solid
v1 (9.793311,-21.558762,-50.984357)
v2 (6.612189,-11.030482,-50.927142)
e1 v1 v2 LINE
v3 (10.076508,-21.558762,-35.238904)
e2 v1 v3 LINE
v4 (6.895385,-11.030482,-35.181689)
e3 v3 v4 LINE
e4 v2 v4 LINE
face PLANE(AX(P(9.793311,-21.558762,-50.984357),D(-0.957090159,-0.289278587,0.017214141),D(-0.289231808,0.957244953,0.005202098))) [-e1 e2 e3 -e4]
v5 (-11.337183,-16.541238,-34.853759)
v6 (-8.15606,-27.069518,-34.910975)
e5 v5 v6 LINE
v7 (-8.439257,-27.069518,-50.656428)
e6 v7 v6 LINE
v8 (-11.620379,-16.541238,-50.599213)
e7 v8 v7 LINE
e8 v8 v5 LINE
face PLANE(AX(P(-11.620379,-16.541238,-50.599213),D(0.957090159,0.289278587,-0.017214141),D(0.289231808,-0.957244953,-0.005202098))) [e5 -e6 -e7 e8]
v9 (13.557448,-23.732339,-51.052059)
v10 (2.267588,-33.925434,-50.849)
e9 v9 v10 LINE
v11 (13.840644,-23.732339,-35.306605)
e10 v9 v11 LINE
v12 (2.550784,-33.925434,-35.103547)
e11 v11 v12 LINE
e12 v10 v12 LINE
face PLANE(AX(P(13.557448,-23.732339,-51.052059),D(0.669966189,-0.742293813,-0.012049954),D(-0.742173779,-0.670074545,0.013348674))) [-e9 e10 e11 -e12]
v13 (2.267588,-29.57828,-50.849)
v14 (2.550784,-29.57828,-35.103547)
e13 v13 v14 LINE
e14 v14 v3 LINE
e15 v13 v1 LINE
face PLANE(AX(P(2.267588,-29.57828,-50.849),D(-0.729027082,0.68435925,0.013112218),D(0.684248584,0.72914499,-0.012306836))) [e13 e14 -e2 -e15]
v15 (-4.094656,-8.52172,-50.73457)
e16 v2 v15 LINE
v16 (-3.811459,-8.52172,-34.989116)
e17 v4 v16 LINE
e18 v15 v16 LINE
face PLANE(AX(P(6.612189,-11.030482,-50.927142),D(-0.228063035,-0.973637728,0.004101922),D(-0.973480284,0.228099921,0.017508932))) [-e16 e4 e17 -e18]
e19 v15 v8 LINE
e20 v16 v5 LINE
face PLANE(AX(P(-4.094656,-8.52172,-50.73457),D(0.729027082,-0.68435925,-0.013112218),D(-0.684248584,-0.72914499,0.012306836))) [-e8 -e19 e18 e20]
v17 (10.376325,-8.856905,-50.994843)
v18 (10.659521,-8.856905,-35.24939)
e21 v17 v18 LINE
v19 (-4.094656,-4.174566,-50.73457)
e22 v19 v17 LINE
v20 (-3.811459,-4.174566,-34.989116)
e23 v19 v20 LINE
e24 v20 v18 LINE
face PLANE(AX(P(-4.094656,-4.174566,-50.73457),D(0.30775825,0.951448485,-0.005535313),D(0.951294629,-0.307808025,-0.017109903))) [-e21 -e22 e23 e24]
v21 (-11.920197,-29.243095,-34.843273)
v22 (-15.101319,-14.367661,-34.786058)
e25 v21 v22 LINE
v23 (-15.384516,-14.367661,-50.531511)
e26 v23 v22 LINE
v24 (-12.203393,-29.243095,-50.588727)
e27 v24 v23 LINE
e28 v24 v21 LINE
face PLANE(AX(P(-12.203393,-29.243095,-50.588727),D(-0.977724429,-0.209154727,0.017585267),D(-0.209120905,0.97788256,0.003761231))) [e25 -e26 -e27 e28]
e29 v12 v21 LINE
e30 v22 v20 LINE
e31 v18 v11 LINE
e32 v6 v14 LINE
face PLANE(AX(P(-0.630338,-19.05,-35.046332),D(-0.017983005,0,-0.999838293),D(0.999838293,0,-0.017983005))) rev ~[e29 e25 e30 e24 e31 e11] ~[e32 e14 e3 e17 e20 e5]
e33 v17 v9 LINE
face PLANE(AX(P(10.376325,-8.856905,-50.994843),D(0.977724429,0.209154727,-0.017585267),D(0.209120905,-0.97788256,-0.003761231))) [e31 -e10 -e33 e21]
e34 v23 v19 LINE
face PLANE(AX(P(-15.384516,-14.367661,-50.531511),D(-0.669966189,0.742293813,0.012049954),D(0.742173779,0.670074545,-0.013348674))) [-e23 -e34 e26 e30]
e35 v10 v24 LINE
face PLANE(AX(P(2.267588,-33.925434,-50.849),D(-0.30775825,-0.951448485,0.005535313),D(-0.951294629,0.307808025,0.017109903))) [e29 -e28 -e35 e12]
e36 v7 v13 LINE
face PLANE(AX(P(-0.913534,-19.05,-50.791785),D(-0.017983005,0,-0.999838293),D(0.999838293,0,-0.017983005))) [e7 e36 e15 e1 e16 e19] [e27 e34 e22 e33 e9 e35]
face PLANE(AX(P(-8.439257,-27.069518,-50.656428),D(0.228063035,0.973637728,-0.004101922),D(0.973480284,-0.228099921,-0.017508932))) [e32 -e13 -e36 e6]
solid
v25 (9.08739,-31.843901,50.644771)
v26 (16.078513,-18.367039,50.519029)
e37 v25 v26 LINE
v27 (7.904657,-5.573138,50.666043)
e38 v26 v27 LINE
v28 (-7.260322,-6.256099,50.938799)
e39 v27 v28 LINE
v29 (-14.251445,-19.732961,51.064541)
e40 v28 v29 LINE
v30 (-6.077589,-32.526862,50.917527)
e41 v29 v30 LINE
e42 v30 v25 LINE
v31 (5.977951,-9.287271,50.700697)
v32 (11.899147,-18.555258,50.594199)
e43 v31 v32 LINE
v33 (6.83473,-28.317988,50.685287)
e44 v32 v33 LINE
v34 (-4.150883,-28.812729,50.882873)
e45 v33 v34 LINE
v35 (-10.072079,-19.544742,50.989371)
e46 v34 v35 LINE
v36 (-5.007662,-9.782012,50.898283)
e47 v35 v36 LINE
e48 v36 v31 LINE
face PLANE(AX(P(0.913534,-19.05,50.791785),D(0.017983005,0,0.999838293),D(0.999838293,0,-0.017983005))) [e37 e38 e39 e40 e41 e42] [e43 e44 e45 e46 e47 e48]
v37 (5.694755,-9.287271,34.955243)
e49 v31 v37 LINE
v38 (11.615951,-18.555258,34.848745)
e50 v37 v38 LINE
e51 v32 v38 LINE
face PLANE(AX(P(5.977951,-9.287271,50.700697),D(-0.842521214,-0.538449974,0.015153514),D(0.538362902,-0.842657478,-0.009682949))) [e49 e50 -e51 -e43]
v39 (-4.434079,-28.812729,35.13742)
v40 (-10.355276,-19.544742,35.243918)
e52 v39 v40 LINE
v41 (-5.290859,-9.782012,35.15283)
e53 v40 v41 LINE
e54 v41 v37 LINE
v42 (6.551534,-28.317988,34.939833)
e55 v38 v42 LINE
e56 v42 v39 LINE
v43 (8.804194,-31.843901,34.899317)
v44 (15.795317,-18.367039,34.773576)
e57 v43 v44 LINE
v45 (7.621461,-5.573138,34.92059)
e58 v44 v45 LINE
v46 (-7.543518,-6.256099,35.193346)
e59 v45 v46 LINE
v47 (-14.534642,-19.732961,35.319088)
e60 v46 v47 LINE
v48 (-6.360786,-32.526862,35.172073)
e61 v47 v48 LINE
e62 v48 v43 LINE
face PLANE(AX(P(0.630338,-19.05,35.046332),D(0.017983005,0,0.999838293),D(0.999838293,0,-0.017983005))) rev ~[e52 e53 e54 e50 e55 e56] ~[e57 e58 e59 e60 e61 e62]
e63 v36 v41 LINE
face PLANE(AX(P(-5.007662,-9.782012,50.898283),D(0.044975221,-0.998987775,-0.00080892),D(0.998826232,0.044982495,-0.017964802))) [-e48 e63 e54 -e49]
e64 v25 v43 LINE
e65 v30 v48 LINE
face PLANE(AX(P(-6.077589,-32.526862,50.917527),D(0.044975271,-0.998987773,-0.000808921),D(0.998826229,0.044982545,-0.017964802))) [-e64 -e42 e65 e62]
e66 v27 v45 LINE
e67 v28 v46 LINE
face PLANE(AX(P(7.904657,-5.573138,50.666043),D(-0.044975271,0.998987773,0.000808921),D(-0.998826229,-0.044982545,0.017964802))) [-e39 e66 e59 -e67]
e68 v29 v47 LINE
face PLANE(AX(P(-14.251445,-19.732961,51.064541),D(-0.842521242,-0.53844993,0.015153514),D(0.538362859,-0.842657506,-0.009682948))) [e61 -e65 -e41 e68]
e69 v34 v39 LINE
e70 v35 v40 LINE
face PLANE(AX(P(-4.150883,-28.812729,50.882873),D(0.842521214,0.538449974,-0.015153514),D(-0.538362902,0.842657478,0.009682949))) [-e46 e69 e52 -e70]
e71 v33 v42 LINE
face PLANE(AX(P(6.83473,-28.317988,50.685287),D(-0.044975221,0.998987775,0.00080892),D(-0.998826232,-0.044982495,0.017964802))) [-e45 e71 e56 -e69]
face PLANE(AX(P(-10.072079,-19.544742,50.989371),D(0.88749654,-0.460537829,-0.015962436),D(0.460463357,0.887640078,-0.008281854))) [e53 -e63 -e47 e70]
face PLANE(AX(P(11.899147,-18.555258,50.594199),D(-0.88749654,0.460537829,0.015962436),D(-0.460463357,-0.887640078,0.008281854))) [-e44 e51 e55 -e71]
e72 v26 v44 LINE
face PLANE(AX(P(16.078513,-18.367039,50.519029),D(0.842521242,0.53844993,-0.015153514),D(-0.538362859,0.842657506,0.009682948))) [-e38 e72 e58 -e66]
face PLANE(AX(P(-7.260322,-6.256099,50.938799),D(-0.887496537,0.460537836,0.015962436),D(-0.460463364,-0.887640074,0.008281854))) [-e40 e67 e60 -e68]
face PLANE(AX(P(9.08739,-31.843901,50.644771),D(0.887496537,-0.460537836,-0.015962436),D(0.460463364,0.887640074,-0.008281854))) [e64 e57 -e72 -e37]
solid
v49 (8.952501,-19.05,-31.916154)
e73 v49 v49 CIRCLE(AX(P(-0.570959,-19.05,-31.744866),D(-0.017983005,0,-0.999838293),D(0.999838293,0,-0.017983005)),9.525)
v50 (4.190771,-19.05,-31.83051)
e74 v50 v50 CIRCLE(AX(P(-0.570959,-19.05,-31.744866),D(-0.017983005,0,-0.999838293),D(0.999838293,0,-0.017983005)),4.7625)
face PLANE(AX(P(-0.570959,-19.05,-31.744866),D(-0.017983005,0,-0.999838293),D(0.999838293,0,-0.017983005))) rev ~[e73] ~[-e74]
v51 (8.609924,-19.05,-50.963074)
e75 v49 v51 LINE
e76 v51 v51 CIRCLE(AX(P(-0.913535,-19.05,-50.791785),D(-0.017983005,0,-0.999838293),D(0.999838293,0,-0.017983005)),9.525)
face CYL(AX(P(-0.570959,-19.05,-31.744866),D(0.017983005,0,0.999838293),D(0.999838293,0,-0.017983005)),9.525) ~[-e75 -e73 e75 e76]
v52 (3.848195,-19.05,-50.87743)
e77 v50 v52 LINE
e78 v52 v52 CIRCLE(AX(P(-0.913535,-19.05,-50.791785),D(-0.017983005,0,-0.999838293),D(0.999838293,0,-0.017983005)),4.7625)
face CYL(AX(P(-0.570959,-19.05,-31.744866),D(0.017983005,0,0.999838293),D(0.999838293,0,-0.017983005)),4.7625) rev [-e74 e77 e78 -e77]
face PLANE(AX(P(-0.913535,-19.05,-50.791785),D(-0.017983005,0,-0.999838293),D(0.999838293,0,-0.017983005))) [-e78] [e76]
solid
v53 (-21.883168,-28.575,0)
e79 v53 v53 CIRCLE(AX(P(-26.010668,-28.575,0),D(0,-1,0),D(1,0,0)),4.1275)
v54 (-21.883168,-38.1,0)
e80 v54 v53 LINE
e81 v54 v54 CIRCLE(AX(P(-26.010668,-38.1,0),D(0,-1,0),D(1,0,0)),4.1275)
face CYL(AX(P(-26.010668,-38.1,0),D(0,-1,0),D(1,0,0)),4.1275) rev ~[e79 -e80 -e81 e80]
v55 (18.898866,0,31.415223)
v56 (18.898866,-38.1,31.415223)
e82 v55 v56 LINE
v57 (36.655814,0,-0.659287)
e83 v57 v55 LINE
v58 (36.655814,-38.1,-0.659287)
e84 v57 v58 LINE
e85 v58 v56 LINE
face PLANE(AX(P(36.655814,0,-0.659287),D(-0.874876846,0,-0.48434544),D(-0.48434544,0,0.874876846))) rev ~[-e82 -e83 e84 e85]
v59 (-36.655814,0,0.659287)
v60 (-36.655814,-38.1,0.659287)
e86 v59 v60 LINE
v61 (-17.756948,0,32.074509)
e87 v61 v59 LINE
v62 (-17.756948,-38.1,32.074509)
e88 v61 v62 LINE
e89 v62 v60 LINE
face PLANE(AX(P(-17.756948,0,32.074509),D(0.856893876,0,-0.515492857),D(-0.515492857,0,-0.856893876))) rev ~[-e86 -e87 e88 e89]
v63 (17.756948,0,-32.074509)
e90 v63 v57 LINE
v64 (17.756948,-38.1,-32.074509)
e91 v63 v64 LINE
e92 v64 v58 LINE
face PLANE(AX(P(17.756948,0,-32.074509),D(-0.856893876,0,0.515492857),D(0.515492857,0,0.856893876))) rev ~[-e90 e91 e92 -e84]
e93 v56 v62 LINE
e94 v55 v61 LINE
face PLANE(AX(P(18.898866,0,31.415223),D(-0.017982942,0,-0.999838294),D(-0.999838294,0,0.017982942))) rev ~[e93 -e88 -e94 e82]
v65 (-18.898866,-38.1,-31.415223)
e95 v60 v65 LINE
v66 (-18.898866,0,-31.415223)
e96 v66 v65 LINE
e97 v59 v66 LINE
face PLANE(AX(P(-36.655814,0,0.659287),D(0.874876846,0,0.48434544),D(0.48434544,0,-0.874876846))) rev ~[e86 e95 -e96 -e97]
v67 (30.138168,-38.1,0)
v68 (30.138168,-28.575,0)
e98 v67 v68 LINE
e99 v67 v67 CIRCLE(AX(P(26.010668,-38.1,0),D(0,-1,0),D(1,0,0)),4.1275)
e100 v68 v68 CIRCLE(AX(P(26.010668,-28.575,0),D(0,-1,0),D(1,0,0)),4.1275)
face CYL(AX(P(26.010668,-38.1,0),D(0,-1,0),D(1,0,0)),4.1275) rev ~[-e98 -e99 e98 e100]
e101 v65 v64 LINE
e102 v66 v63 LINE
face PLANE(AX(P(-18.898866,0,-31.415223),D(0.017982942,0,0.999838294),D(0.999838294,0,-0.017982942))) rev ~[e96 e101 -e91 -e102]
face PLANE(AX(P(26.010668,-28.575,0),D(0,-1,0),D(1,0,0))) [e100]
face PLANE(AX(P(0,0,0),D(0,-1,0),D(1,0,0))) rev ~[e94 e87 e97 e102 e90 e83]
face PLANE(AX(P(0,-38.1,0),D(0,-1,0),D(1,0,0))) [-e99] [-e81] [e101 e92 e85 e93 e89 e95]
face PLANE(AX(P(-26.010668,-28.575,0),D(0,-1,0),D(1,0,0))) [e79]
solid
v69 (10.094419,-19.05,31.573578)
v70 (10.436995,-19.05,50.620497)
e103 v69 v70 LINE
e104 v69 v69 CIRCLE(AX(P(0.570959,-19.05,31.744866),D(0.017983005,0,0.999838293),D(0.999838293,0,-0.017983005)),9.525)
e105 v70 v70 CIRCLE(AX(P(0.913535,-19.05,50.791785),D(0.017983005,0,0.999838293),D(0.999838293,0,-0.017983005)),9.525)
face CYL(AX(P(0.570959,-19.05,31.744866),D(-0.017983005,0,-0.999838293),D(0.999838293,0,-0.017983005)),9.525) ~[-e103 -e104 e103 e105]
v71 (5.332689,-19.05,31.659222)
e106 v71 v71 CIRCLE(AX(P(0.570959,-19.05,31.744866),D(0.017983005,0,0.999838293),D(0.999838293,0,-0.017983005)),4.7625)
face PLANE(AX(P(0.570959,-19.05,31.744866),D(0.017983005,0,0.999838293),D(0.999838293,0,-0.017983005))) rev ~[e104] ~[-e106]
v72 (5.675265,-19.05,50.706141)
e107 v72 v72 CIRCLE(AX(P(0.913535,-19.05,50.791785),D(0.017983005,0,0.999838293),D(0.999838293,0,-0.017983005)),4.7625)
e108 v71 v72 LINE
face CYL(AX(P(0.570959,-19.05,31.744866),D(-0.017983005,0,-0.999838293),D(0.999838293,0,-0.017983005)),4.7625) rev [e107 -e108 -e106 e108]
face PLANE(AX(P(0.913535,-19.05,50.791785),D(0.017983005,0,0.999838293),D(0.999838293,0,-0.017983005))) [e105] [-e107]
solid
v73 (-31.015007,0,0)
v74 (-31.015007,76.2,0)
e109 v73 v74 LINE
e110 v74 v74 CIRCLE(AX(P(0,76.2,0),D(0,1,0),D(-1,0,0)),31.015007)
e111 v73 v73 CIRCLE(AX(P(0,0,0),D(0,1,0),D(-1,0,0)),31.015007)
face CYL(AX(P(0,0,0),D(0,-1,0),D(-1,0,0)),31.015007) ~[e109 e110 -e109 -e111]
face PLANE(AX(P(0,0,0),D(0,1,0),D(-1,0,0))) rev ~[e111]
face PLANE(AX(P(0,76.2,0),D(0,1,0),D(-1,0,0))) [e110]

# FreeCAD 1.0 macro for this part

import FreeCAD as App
import Part
import Sketcher
Q = App.Units.Quantity


def add_polygon(sketch, points):
    """Adds a closed chain of lines whose ends are joined by coincident constraints."""
    first, n = sketch.GeometryCount, len(points)
    for a, b in zip(points, points[1:] + points[:1]):
        sketch.addGeometry(Part.LineSegment(App.Vector(*a, 0), App.Vector(*b, 0)), False)
    for i in range(n):
        sketch.addConstraint(Sketcher.Constraint("Coincident", first + i, 2, first + (i + 1) % n, 1))

doc = App.newDocument("Part")
body = doc.addObject("PartDesign::Body", "Body")

sketch1 = doc.addObject("Sketcher::SketchObject", "Sketch")
body.addObject(sketch1)
sketch1.AttachmentSupport = (doc.XZ_Plane, [""])
sketch1.MapMode = "FlatFace"
add_polygon(sketch1, [(18, -32), (37, -1), (19, 31), (-18, 32), (-37, 1), (-19, -31)])
sketch1.addConstraint(Sketcher.Constraint("Symmetric", 0, 2, 3, 2, -1, 1))
sketch1.addConstraint(Sketcher.Constraint("Symmetric", 1, 2, 4, 2, -1, 1))
sketch1.addConstraint(Sketcher.Constraint("Symmetric", 2, 2, 5, 2, -1, 1))
sketch1.addConstraint(Sketcher.Constraint("Equal", 0, 1))
sketch1.addConstraint(Sketcher.Constraint("Equal", 1, 2))
sketch1.addConstraint(Sketcher.Constraint("Distance", 0, Q("36.661742 mm")))
sketch1.addConstraint(Sketcher.Constraint("DistanceX", 2, 2, -1, 1, Q("17.756948 mm")))
sketch1.addConstraint(Sketcher.Constraint("DistanceY", -1, 1, 2, 2, Q("32.074509 mm")))
sketch1.addConstraint(Sketcher.Constraint("DistanceY", 0, 2, 1, 2, Q("32.07451 mm")))
pad1 = doc.addObject("PartDesign::Pad", "Pad")
body.addObject(pad1)
pad1.Profile = sketch1
pad1.Length = Q("1.5 in")

sketch2 = doc.addObject("Sketcher::SketchObject", "Sketch001")
body.addObject(sketch2)
sketch2.AttachmentSupport = (doc.XZ_Plane, [""])
sketch2.MapMode = "FlatFace"
sketch2.AttachmentOffset = App.Placement(App.Vector(0, 0, 1.5 * 25.4), App.Rotation())
sketch2.addGeometry(Part.Circle(App.Vector(-26, 0, 0), App.Vector(0, 0, 1), 4.1), False)
sketch2.addGeometry(Part.Circle(App.Vector(26, 0, 0), App.Vector(0, 0, 1), 4.1), False)
sketch2.addConstraint(Sketcher.Constraint("Equal", 0, 1))
sketch2.addConstraint(Sketcher.Constraint("Symmetric", 0, 3, 1, 3, -1, 1))
sketch2.addConstraint(Sketcher.Constraint("PointOnObject", 0, 3, -1))
sketch2.addConstraint(Sketcher.Constraint("Diameter", 0, Q("0.325 in")))
sketch2.addConstraint(Sketcher.Constraint("DistanceX", 0, 3, -1, 1, Q("26.010668 mm")))
pocket1 = doc.addObject("PartDesign::Pocket", "Pocket")
body.addObject(pocket1)
pocket1.Profile = sketch2
pocket1.Length = Q("0.375 in")
body2 = doc.addObject("PartDesign::Body", "Body001")

sketch3 = doc.addObject("Sketcher::SketchObject", "Sketch002")
body2.addObject(sketch3)
sketch3.Placement = App.Placement(App.Vector(-0.570959, 0, -31.744866), App.Rotation(App.Vector(0.999838293, 0, -0.017983005), App.Vector(0, -1.000000001, 0), App.Vector(-0.017983005, 0, -0.999838293), "ZXY"))
sketch3.addGeometry(Part.Circle(App.Vector(0, 19.1, 0), App.Vector(0, 0, 1), 9.5), False)
sketch3.addGeometry(Part.Circle(App.Vector(0, 19.1, 0), App.Vector(0, 0, 1), 4.8), False)
sketch3.addConstraint(Sketcher.Constraint("Coincident", 1, 3, 0, 3))
sketch3.addConstraint(Sketcher.Constraint("PointOnObject", 0, 3, -2))
sketch3.addConstraint(Sketcher.Constraint("Diameter", 0, Q("0.75 in")))
sketch3.addConstraint(Sketcher.Constraint("Diameter", 1, Q("0.375 in")))
sketch3.addConstraint(Sketcher.Constraint("DistanceY", -1, 1, 0, 3, Q("0.75 in")))
pad2 = doc.addObject("PartDesign::Pad", "Pad001")
body2.addObject(pad2)
pad2.Profile = sketch3
pad2.Length = Q("0.75 in")
body3 = doc.addObject("PartDesign::Body", "Body002")

sketch4 = doc.addObject("Sketcher::SketchObject", "Sketch003")
body3.addObject(sketch4)
sketch4.Placement = App.Placement(App.Vector(-0.913534, 0, -50.791785), App.Rotation(App.Vector(0.999838293, 0, -0.017983005), App.Vector(0, -1.000000001, 0), App.Vector(-0.017983005, 0, -0.999838293), "ZXY"))
add_polygon(sketch4, [(11, 9), (14, 24), (3, 34), (-11, 29), (-14, 14), (-3, 4)])
add_polygon(sketch4, [(-8, 27), (3, 30), (11, 22), (8, 11), (-3, 9), (-11, 17)])
sketch4.addConstraint(Sketcher.Constraint("Parallel", 0, 3))
sketch4.addConstraint(Sketcher.Constraint("Parallel", 1, 4))
sketch4.addConstraint(Sketcher.Constraint("Parallel", 2, 5))
sketch4.addConstraint(Sketcher.Constraint("Parallel", 6, 9))
sketch4.addConstraint(Sketcher.Constraint("Parallel", 7, 10))
sketch4.addConstraint(Sketcher.Constraint("Parallel", 8, 11))
sketch4.addConstraint(Sketcher.Constraint("Vertical", 1, 2, 6, 2))
sketch4.addConstraint(Sketcher.Constraint("Vertical", 4, 2, 9, 2))
sketch4.addConstraint(Sketcher.Constraint("Equal", 0, 1))
sketch4.addConstraint(Sketcher.Constraint("Equal", 1, 2))
sketch4.addConstraint(Sketcher.Constraint("Equal", 2, 3))
sketch4.addConstraint(Sketcher.Constraint("Equal", 6, 7))
sketch4.addConstraint(Sketcher.Constraint("Equal", 7, 8))
sketch4.addConstraint(Sketcher.Constraint("Equal", 8, 9))
sketch4.addConstraint(Sketcher.Constraint("DistanceY", 8, 2, 6, 2, Q("18.547798 mm")))
sketch4.addConstraint(Sketcher.Constraint("Distance", 0, Q("15.211882 mm")))
sketch4.addConstraint(Sketcher.Constraint("DistanceY", -1, 1, 0, 2, Q("23.732339 mm")))
sketch4.addConstraint(Sketcher.Constraint("DistanceY", -1, 1, 3, 2, Q("14.367661 mm")))
sketch4.addConstraint(Sketcher.Constraint("DistanceY", -1, 1, 6, 2, Q("29.57828 mm")))
sketch4.addConstraint(Sketcher.Constraint("DistanceX", -1, 1, 8, 2, Q("7.52694 mm")))
sketch4.addConstraint(Sketcher.Constraint("DistanceY", -1, 1, 9, 2, Q("8.52172 mm")))
sketch4.addConstraint(Sketcher.Constraint("DistanceY", -1, 1, 10, 2, Q("16.541238 mm")))
sketch4.addConstraint(Sketcher.Constraint("DistanceX", 11, 2, -1, 1, Q("7.52694 mm")))
sketch4.addConstraint(Sketcher.Constraint("DistanceX", 2, 2, 1, 2, Q("14.473321 mm")))
pad3 = doc.addObject("PartDesign::Pad", "Pad002")
body3.addObject(pad3)
pad3.Profile = sketch4
pad3.Length = Q("0.62 in")
pad3.Reversed = True
body4 = doc.addObject("PartDesign::Body", "Body003")

sketch5 = doc.addObject("Sketcher::SketchObject", "Sketch004")
body4.addObject(sketch5)
sketch5.Placement = App.Placement(App.Vector(0.570959, 0, 31.744866), App.Rotation(App.Vector(0.999838293, 0, -0.017983005), App.Vector(0, 1.000000001, 0), App.Vector(0.017983005, 0, 0.999838293), "ZXY"))
sketch5.addGeometry(Part.Circle(App.Vector(0, -19.1, 0), App.Vector(0, 0, 1), 9.5), False)
sketch5.addGeometry(Part.Circle(App.Vector(0, -19.1, 0), App.Vector(0, 0, 1), 4.8), False)
sketch5.addConstraint(Sketcher.Constraint("Coincident", 1, 3, 0, 3))
sketch5.addConstraint(Sketcher.Constraint("PointOnObject", 0, 3, -2))
sketch5.addConstraint(Sketcher.Constraint("Diameter", 0, Q("0.75 in")))
sketch5.addConstraint(Sketcher.Constraint("Diameter", 1, Q("0.375 in")))
sketch5.addConstraint(Sketcher.Constraint("DistanceY", 0, 3, -1, 1, Q("0.75 in")))
pad4 = doc.addObject("PartDesign::Pad", "Pad003")
body4.addObject(pad4)
pad4.Profile = sketch5
pad4.Length = Q("0.75 in")
body5 = doc.addObject("PartDesign::Body", "Body004")

sketch6 = doc.addObject("Sketcher::SketchObject", "Sketch005")
body5.addObject(sketch6)
sketch6.Placement = App.Placement(App.Vector(0.913534, 0, 50.791785), App.Rotation(App.Vector(0.999838293, 0, -0.017983005), App.Vector(0, 1.000000001, 0), App.Vector(0.017983005, 0, 0.999838293), "ZXY"))
add_polygon(sketch6, [(8, -32), (15, -18), (7, -6), (-8, -6), (-15, -20), (-7, -33)])
add_polygon(sketch6, [(-6, -10), (5, -9), (11, -19), (6, -28), (-5, -29), (-11, -20)])
sketch6.addConstraint(Sketcher.Constraint("Parallel", 0, 3))
sketch6.addConstraint(Sketcher.Constraint("Parallel", 1, 4))
sketch6.addConstraint(Sketcher.Constraint("Parallel", 2, 5))
sketch6.addConstraint(Sketcher.Constraint("Parallel", 5, 6))
sketch6.addConstraint(Sketcher.Constraint("Parallel", 4, 7))
sketch6.addConstraint(Sketcher.Constraint("Parallel", 3, 8))
sketch6.addConstraint(Sketcher.Constraint("Parallel", 6, 9))
sketch6.addConstraint(Sketcher.Constraint("Parallel", 7, 10))
sketch6.addConstraint(Sketcher.Constraint("Parallel", 8, 11))
sketch6.addConstraint(Sketcher.Constraint("Equal", 0, 1))
sketch6.addConstraint(Sketcher.Constraint("Equal", 1, 2))
sketch6.addConstraint(Sketcher.Constraint("Equal", 2, 3))
sketch6.addConstraint(Sketcher.Constraint("Equal", 6, 7))
sketch6.addConstraint(Sketcher.Constraint("Equal", 7, 8))
sketch6.addConstraint(Sketcher.Constraint("Equal", 8, 9))
sketch6.addConstraint(Sketcher.Constraint("Distance", 0, Q("15.1828 mm")))
sketch6.addConstraint(Sketcher.Constraint("DistanceY", 2, 2, -1, 1, Q("6.256099 mm")))
sketch6.addConstraint(Sketcher.Constraint("DistanceY", 5, 2, -1, 1, Q("31.843901 mm")))
sketch6.addConstraint(Sketcher.Constraint("DistanceY", 0, 2, 1, 2, Q("12.793901 mm")))
sketch6.addConstraint(Sketcher.Constraint("DistanceY", 0, 2, -1, 1, Q("18.367039 mm")))
sketch6.addConstraint(Sketcher.Constraint("DistanceX", 2, 2, -1, 1, Q("8.175178 mm")))
sketch6.addConstraint(Sketcher.Constraint("DistanceY", 6, 2, -1, 1, Q("9.287271 mm")))
sketch6.addConstraint(Sketcher.Constraint("DistanceX", -1, 1, 7, 2, Q("10.98739 mm")))
sketch6.addConstraint(Sketcher.Constraint("DistanceY", 7, 2, -1, 1, Q("18.555258 mm")))
pad5 = doc.addObject("PartDesign::Pad", "Pad004")
body5.addObject(pad5)
pad5.Profile = sketch6
pad5.Length = Q("0.62 in")
pad5.Reversed = True
body6 = doc.addObject("PartDesign::Body", "Body005")

sketch7 = doc.addObject("Sketcher::SketchObject", "Sketch006")
body6.addObject(sketch7)
sketch7.AttachmentSupport = (doc.getObject("XZ_Plane005"), [""])
sketch7.MapMode = "FlatFace"
sketch7.addGeometry(Part.Circle(App.Vector(0, 0, 0), App.Vector(0, 0, 1), 31), False)
sketch7.addConstraint(Sketcher.Constraint("Coincident", 0, 3, -1, 1))
sketch7.addConstraint(Sketcher.Constraint("Diameter", 0, Q("62.030014 mm")))
pad6 = doc.addObject("PartDesign::Pad", "Pad005")
body6.addObject(pad6)
pad6.Profile = sketch7
pad6.Length = Q("3 in")
pad6.Reversed = True

doc.recompute()
